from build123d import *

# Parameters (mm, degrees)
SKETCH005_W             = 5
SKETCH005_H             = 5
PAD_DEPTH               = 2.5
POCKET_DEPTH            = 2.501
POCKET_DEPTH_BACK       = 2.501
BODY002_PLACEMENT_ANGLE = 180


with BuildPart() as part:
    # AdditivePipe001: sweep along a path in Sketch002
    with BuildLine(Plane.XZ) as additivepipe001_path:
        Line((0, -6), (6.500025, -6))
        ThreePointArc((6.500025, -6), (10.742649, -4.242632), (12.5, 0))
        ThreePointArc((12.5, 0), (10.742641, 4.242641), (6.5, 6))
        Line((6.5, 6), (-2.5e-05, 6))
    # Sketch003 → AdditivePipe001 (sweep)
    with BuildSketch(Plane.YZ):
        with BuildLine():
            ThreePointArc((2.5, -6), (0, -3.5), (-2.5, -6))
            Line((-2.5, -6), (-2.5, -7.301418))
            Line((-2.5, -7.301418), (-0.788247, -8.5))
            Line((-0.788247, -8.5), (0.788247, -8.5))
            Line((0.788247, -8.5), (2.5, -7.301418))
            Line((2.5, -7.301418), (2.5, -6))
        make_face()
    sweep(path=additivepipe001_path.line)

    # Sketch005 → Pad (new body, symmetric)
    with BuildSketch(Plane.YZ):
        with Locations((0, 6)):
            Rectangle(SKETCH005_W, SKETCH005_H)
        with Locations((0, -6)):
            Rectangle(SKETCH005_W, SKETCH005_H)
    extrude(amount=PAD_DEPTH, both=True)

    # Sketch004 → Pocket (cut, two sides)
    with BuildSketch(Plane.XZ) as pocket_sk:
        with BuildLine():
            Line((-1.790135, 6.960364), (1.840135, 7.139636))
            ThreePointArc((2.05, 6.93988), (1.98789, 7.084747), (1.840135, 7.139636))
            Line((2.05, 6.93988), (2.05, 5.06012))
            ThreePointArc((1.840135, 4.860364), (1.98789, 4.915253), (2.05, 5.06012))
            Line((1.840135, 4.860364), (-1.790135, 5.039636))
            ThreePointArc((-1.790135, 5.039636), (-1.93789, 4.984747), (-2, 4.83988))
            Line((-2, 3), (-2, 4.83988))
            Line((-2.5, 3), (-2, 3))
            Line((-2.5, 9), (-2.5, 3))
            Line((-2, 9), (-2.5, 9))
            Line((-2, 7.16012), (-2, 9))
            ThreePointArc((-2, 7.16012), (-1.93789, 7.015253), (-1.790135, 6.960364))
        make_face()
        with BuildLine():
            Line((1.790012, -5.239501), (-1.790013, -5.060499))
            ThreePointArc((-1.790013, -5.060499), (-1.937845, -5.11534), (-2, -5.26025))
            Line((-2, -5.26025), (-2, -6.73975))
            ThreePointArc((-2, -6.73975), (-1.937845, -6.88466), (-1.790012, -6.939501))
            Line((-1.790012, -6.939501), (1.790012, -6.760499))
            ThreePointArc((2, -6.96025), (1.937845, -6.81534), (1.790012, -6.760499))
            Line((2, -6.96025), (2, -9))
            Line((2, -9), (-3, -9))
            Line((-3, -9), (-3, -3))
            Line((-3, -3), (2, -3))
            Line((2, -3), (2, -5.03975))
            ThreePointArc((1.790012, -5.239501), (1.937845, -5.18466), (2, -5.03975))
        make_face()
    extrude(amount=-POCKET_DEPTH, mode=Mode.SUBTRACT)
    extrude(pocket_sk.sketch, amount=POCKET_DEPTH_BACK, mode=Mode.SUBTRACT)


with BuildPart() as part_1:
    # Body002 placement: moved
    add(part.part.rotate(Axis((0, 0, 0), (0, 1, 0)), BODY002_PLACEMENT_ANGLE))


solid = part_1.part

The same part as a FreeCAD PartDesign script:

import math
import FreeCAD as App
import Part
import Sketcher
Q = App.Units.Quantity

doc = App.newDocument("Part")
body = doc.addObject("PartDesign::Body", "Body")

sketch1 = doc.addObject("Sketcher::SketchObject", "Sketch")
body.addObject(sketch1)
sketch1.AttachmentSupport = (doc.YZ_Plane, [""])
sketch1.MapMode = "FlatFace"
sketch1.addGeometry(Part.ArcOfCircle(Part.Circle(App.Vector(0, -6, 0), App.Vector(0, 0, 1), 2.5), math.radians(0), math.radians(180)), False)
sketch1.addGeometry(Part.LineSegment(App.Vector(-2.5, -6, 0), App.Vector(-2.5, -7.3, 0)), False)
sketch1.addGeometry(Part.LineSegment(App.Vector(-2.5, -7.3, 0), App.Vector(-0.8, -8.5, 0)), False)
sketch1.addGeometry(Part.LineSegment(App.Vector(-0.8, -8.5, 0), App.Vector(0.8, -8.5, 0)), False)
sketch1.addGeometry(Part.LineSegment(App.Vector(0.8, -8.5, 0), App.Vector(2.5, -7.3, 0)), False)
sketch1.addGeometry(Part.LineSegment(App.Vector(2.5, -7.3, 0), App.Vector(2.5, -6, 0)), False)
sketch1.addConstraint(Sketcher.Constraint("Tangent", 0, 2, 1, 1))
sketch1.addConstraint(Sketcher.Constraint("Coincident", 1, 2, 2, 1))
sketch1.addConstraint(Sketcher.Constraint("Coincident", 2, 2, 3, 1))
sketch1.addConstraint(Sketcher.Constraint("Coincident", 3, 2, 4, 1))
sketch1.addConstraint(Sketcher.Constraint("Coincident", 4, 2, 5, 1))
sketch1.addConstraint(Sketcher.Constraint("Tangent", 5, 2, 0, 1))
sketch1.addConstraint(Sketcher.Constraint("Vertical", 1))
sketch1.addConstraint(Sketcher.Constraint("Horizontal", 3))
sketch1.addConstraint(Sketcher.Constraint("Vertical", 5))
sketch1.addConstraint(Sketcher.Constraint("Symmetric", 1, 2, 4, 2, -2))
sketch1.addConstraint(Sketcher.Constraint("Equal", 2, 4))
sketch1.addConstraint(Sketcher.Constraint("Radius", 0, 2.5))
sketch1.addConstraint(Sketcher.Constraint("Angle", 2, Q("-34.999992 deg")))
sketch1.addConstraint(Sketcher.Constraint("DistanceY", 0, 3, -1, 1, 6.0))
sketch1.addConstraint(Sketcher.Constraint("DistanceY", 2, 2, -1, 1, 8.5))
sketch1.addConstraint(Sketcher.Constraint("DistanceX", 3, 1, 3, 2, 1.576494))

sketch2 = doc.addObject("Sketcher::SketchObject", "Sketch001")
body.addObject(sketch2)
sketch2.AttachmentSupport = (doc.XZ_Plane, [""])
sketch2.MapMode = "FlatFace"
sketch2.addGeometry(Part.LineSegment(App.Vector(0, -6, 0), App.Vector(7, -6, 0)), False)
sketch2.addGeometry(Part.ArcOfCircle(Part.Circle(App.Vector(6, 0, 0), App.Vector(0, 0, 1), 6), math.radians(-90), math.radians(0)), False)
sketch2.addGeometry(Part.ArcOfCircle(Part.Circle(App.Vector(7, 0, 0), App.Vector(0, 0, 1), 6), math.radians(0), math.radians(90)), False)
sketch2.addGeometry(Part.LineSegment(App.Vector(6, 6, 0), App.Vector(0, 6, 0)), False)
sketch2.addConstraint(Sketcher.Constraint("Coincident", 0, 2, 1, 1))
sketch2.addConstraint(Sketcher.Constraint("Tangent", 1, 2, 2, 1))
sketch2.addConstraint(Sketcher.Constraint("Tangent", 2, 2, 3, 1))
sketch2.addConstraint(Sketcher.Constraint("Horizontal", 0))
sketch2.addConstraint(Sketcher.Constraint("Horizontal", 3))
sketch2.addConstraint(Sketcher.Constraint("Equal", 1, 2))
sketch2.addConstraint(Sketcher.Constraint("PointOnObject", 1, 3, -1))
sketch2.addConstraint(Sketcher.Constraint("PointOnObject", 0, 1, -2))
sketch2.addConstraint(Sketcher.Constraint("PointOnObject", 1, 2, -1))
sketch2.addConstraint(Sketcher.Constraint("Equal", 0, 3))
sketch2.addConstraint(Sketcher.Constraint("Radius", 1, 6.000001))
sketch2.addConstraint(Sketcher.Constraint("DistanceX", -1, 1, 1, 3, 6.499999))
sketch2.addConstraint(Sketcher.Constraint("DistanceX", 0, 1, 0, 2, 6.500025))
doc.recompute()

additivepipe = doc.addObject("PartDesign::AdditivePipe", "AdditivePipe")
body.addObject(additivepipe)
additivepipe.Profile = sketch1
additivepipe.Spine = (sketch2, ["Edge1", "Edge2", "Edge3", "Edge4"])

sketch3 = doc.addObject("Sketcher::SketchObject", "Sketch002")
body.addObject(sketch3)
sketch3.AttachmentSupport = (doc.YZ_Plane, [""])
sketch3.MapMode = "FlatFace"
sketch3.addGeometry(Part.LineSegment(App.Vector(-2, 8, 0), App.Vector(-2, 4, 0)), False)
sketch3.addGeometry(Part.LineSegment(App.Vector(-2, 4, 0), App.Vector(2, 4, 0)), False)
sketch3.addGeometry(Part.LineSegment(App.Vector(2, 4, 0), App.Vector(2, 8, 0)), False)
sketch3.addGeometry(Part.LineSegment(App.Vector(2, 8, 0), App.Vector(-2, 8, 0)), False)
sketch3.addGeometry(Part.LineSegment(App.Vector(-2, -4, 0), App.Vector(-2, -8, 0)), False)
sketch3.addGeometry(Part.LineSegment(App.Vector(-2, -8, 0), App.Vector(2, -8, 0)), False)
sketch3.addGeometry(Part.LineSegment(App.Vector(2, -8, 0), App.Vector(2, -4, 0)), False)
sketch3.addGeometry(Part.LineSegment(App.Vector(2, -4, 0), App.Vector(-2, -4, 0)), False)
sketch3.addConstraint(Sketcher.Constraint("Coincident", 0, 2, 1, 1))
sketch3.addConstraint(Sketcher.Constraint("Coincident", 1, 2, 2, 1))
sketch3.addConstraint(Sketcher.Constraint("Coincident", 2, 2, 3, 1))
sketch3.addConstraint(Sketcher.Constraint("Coincident", 3, 2, 0, 1))
sketch3.addConstraint(Sketcher.Constraint("Coincident", 4, 2, 5, 1))
sketch3.addConstraint(Sketcher.Constraint("Coincident", 5, 2, 6, 1))
sketch3.addConstraint(Sketcher.Constraint("Coincident", 6, 2, 7, 1))
sketch3.addConstraint(Sketcher.Constraint("Coincident", 7, 2, 4, 1))
sketch3.addConstraint(Sketcher.Constraint("Vertical", 0))
sketch3.addConstraint(Sketcher.Constraint("Horizontal", 1))
sketch3.addConstraint(Sketcher.Constraint("Vertical", 2))
sketch3.addConstraint(Sketcher.Constraint("Horizontal", 3))
sketch3.addConstraint(Sketcher.Constraint("Vertical", 4))
sketch3.addConstraint(Sketcher.Constraint("Horizontal", 5))
sketch3.addConstraint(Sketcher.Constraint("Vertical", 6))
sketch3.addConstraint(Sketcher.Constraint("Horizontal", 7))
sketch3.addConstraint(Sketcher.Constraint("Symmetric", 2, 2, 4, 2, -1, 1))
sketch3.addConstraint(Sketcher.Constraint("Symmetric", 0, 2, 6, 2, -1, 1))
sketch3.addConstraint(Sketcher.Constraint("Vertical", 3, 2, 4, 2))
sketch3.addConstraint(Sketcher.Constraint("Equal", 7, 0))
sketch3.addConstraint(Sketcher.Constraint("DistanceX", 1, 1, 1, 2, 5.0))
sketch3.addConstraint(Sketcher.Constraint("DistanceY", 4, 2, 0, 2, 12.0))
pad1 = doc.addObject("PartDesign::Pad", "Pad")
body.addObject(pad1)
pad1.Profile = sketch3
pad1.Length = 5
pad1.Midplane = True

sketch4 = doc.addObject("Sketcher::SketchObject", "Sketch003")
body.addObject(sketch4)
sketch4.AttachmentSupport = (doc.XZ_Plane, [""])
sketch4.MapMode = "FlatFace"
sketch4.addGeometry(Part.LineSegment(App.Vector(1.84, 7.14, 0), App.Vector(-1.79, 6.96, 0)), False)
sketch4.addGeometry(Part.ArcOfCircle(Part.Circle(App.Vector(-1.8, 7.16, 0), App.Vector(0, 0, 1), 0.2), math.radians(180), math.radians(273)), False)
sketch4.addGeometry(Part.LineSegment(App.Vector(-2, 7.16, 0), App.Vector(-2, 9, 0)), False)
sketch4.addGeometry(Part.LineSegment(App.Vector(-2, 9, 0), App.Vector(-2.5, 9, 0)), False)
sketch4.addGeometry(Part.LineSegment(App.Vector(-2.5, 9, 0), App.Vector(-2.5, 3, 0)), False)
sketch4.addGeometry(Part.LineSegment(App.Vector(-2.5, 3, 0), App.Vector(-2, 3, 0)), False)
sketch4.addGeometry(Part.LineSegment(App.Vector(-2, 3, 0), App.Vector(-2, 4.84, 0)), False)
sketch4.addGeometry(Part.ArcOfCircle(Part.Circle(App.Vector(-1.8, 4.84, 0), App.Vector(0, 0, 1), 0.2), math.radians(87), math.radians(180)), False)
sketch4.addGeometry(Part.LineSegment(App.Vector(-1.79, 5.04, 0), App.Vector(1.84, 4.86, 0)), False)
sketch4.addGeometry(Part.ArcOfCircle(Part.Circle(App.Vector(1.85, 5.06, 0), App.Vector(0, 0, 1), 0.2), math.radians(-93), math.radians(0)), False)
sketch4.addGeometry(Part.LineSegment(App.Vector(2.05, 5.06, 0), App.Vector(2.05, 6.94, 0)), False)
sketch4.addGeometry(Part.ArcOfCircle(Part.Circle(App.Vector(1.85, 6.94, 0), App.Vector(0, 0, 1), 0.2), math.radians(0), math.radians(93)), False)
sketch4.addGeometry(Part.LineSegment(App.Vector(-1.79, -5.06, 0), App.Vector(1.79, -5.24, 0)), False)
sketch4.addGeometry(Part.ArcOfCircle(Part.Circle(App.Vector(1.8, -5.04, 0), App.Vector(0, 0, 1), 0.2), math.radians(-93), math.radians(0)), False)
sketch4.addGeometry(Part.LineSegment(App.Vector(2, -5.04, 0), App.Vector(2, -3, 0)), False)
sketch4.addGeometry(Part.LineSegment(App.Vector(2, -3, 0), App.Vector(-3, -3, 0)), False)
sketch4.addGeometry(Part.LineSegment(App.Vector(-3, -3, 0), App.Vector(-3, -9, 0)), False)
sketch4.addGeometry(Part.LineSegment(App.Vector(-3, -9, 0), App.Vector(2, -9, 0)), False)
sketch4.addGeometry(Part.LineSegment(App.Vector(2, -9, 0), App.Vector(2, -6.96, 0)), False)
sketch4.addGeometry(Part.ArcOfCircle(Part.Circle(App.Vector(1.8, -6.96, 0), App.Vector(0, 0, 1), 0.2), math.radians(0), math.radians(93)), False)
sketch4.addGeometry(Part.LineSegment(App.Vector(1.79, -6.76, 0), App.Vector(-1.79, -6.94, 0)), False)
sketch4.addGeometry(Part.ArcOfCircle(Part.Circle(App.Vector(-1.8, -6.74, 0), App.Vector(0, 0, 1), 0.2), math.radians(180), math.radians(273)), False)
sketch4.addGeometry(Part.LineSegment(App.Vector(-2, -6.74, 0), App.Vector(-2, -5.26, 0)), False)
sketch4.addGeometry(Part.ArcOfCircle(Part.Circle(App.Vector(-1.8, -5.26, 0), App.Vector(0, 0, 1), 0.2), math.radians(87), math.radians(180)), False)
sketch4.addConstraint(Sketcher.Constraint("Coincident", 0, 2, 1, 2))
sketch4.addConstraint(Sketcher.Constraint("Coincident", 1, 1, 2, 1))
sketch4.addConstraint(Sketcher.Constraint("Coincident", 2, 2, 3, 1))
sketch4.addConstraint(Sketcher.Constraint("Coincident", 3, 2, 4, 1))
sketch4.addConstraint(Sketcher.Constraint("Coincident", 4, 2, 5, 1))
sketch4.addConstraint(Sketcher.Constraint("Coincident", 5, 2, 6, 1))
sketch4.addConstraint(Sketcher.Constraint("Coincident", 6, 2, 7, 2))
sketch4.addConstraint(Sketcher.Constraint("Coincident", 7, 1, 8, 1))
sketch4.addConstraint(Sketcher.Constraint("Coincident", 8, 2, 9, 1))
sketch4.addConstraint(Sketcher.Constraint("Coincident", 9, 2, 10, 1))
sketch4.addConstraint(Sketcher.Constraint("Coincident", 10, 2, 11, 1))
sketch4.addConstraint(Sketcher.Constraint("Coincident", 11, 2, 0, 1))
sketch4.addConstraint(Sketcher.Constraint("Tangent", 12, 2, 13, 1))
sketch4.addConstraint(Sketcher.Constraint("Coincident", 13, 2, 14, 1))
sketch4.addConstraint(Sketcher.Constraint("Coincident", 14, 2, 15, 1))
sketch4.addConstraint(Sketcher.Constraint("Coincident", 15, 2, 16, 1))
sketch4.addConstraint(Sketcher.Constraint("Coincident", 16, 2, 17, 1))
sketch4.addConstraint(Sketcher.Constraint("Coincident", 17, 2, 18, 1))
sketch4.addConstraint(Sketcher.Constraint("Coincident", 18, 2, 19, 1))
sketch4.addConstraint(Sketcher.Constraint("Tangent", 19, 2, 20, 1))
sketch4.addConstraint(Sketcher.Constraint("Tangent", 20, 2, 21, 2))
sketch4.addConstraint(Sketcher.Constraint("Coincident", 21, 1, 22, 1))
sketch4.addConstraint(Sketcher.Constraint("Coincident", 22, 2, 23, 2))
sketch4.addConstraint(Sketcher.Constraint("Coincident", 23, 1, 12, 1))
sketch4.addConstraint(Sketcher.Constraint("Vertical", 2))
sketch4.addConstraint(Sketcher.Constraint("Horizontal", 3))
sketch4.addConstraint(Sketcher.Constraint("Vertical", 4))
sketch4.addConstraint(Sketcher.Constraint("Horizontal", 5))
sketch4.addConstraint(Sketcher.Constraint("Vertical", 6))
sketch4.addConstraint(Sketcher.Constraint("Vertical", 10))
sketch4.addConstraint(Sketcher.Constraint("Vertical", 14))
sketch4.addConstraint(Sketcher.Constraint("Horizontal", 15))
sketch4.addConstraint(Sketcher.Constraint("Vertical", 16))
sketch4.addConstraint(Sketcher.Constraint("Horizontal", 17))
sketch4.addConstraint(Sketcher.Constraint("Vertical", 18))
sketch4.addConstraint(Sketcher.Constraint("Vertical", 22))
sketch4.addConstraint(Sketcher.Constraint("Equal", 1, 7))
sketch4.addConstraint(Sketcher.Constraint("Equal", 7, 9))
sketch4.addConstraint(Sketcher.Constraint("Equal", 9, 11))
sketch4.addConstraint(Sketcher.Constraint("Equal", 11, 13))
sketch4.addConstraint(Sketcher.Constraint("Equal", 13, 19))
sketch4.addConstraint(Sketcher.Constraint("Equal", 19, 21))
sketch4.addConstraint(Sketcher.Constraint("Equal", 21, 23))
sketch4.addConstraint(Sketcher.Constraint("Symmetric", 5, 2, 14, 2, -1, 1))
sketch4.addConstraint(Sketcher.Constraint("Symmetric", 2, 2, 17, 2, -1, 1))
sketch4.addConstraint(Sketcher.Constraint("Horizontal", 7, 3, 6, 2))
sketch4.addConstraint(Sketcher.Constraint("Horizontal", 11, 3, 10, 2))
sketch4.addConstraint(Sketcher.Constraint("Horizontal", 19, 3, 18, 2))
sketch4.addConstraint(Sketcher.Constraint("Horizontal", 23, 3, 22, 2))
sketch4.addConstraint(Sketcher.Constraint("Vertical", 1, 3, 7, 3))
sketch4.addConstraint(Sketcher.Constraint("Vertical", 7, 3, 21, 3))
sketch4.addConstraint(Sketcher.Constraint("Vertical", 0, 2, 7, 1))
sketch4.addConstraint(Sketcher.Constraint("Vertical", 8, 2, 11, 2))
sketch4.addConstraint(Sketcher.Constraint("Vertical", 12, 2, 19, 2))
sketch4.addConstraint(Sketcher.Constraint("Vertical", 20, 2, 23, 1))
sketch4.addConstraint(Sketcher.Constraint("Equal", 2, 6))
sketch4.addConstraint(Sketcher.Constraint("Equal", 14, 18))
sketch4.addConstraint(Sketcher.Constraint("Equal", 0, 8))
sketch4.addConstraint(Sketcher.Constraint("Radius", 1, 0.199999))
sketch4.addConstraint(Sketcher.Constraint("DistanceX", 15, 2, 15, 1, 5.0))
sketch4.addConstraint(Sketcher.Constraint("DistanceY", 4, 2, 4, 1, 6.0))
sketch4.addConstraint(Sketcher.Constraint("DistanceX", 3, 2, 3, 1, 0.5))
sketch4.addConstraint(Sketcher.Constraint("DistanceX", 1, 1, -1, 1, 2.0))
sketch4.addConstraint(Sketcher.Constraint("DistanceY", -1, 1, 2, 2, 9.0))
sketch4.addConstraint(Sketcher.Constraint("DistanceY", 9, 3, 1, 3, 2.1))
sketch4.addConstraint(Sketcher.Constraint("DistanceY", 21, 3, 13, 3, 1.7))
sketch4.addConstraint(Sketcher.Constraint("DistanceY", 9, 3, 1, 1, 2.100001))
sketch4.addConstraint(Sketcher.Constraint("DistanceY", 21, 3, 13, 2, 1.700001))
sketch4.addConstraint(Sketcher.Constraint("DistanceX", -1, 1, 9, 3, 1.850001))
sketch4.addConstraint(Sketcher.Constraint("DistanceY", 22, 1, 22, 2, 1.4795))
sketch4.addConstraint(Sketcher.Constraint("DistanceY", 19, 2, 12, 2, 1.520998))
sketch4.addConstraint(Sketcher.Constraint("DistanceY", 2, 1, 2, 2, 1.83988))
sketch4.addConstraint(Sketcher.Constraint("DistanceY", 10, 1, 10, 2, 1.87976))
sketch4.addConstraint(Sketcher.Constraint("DistanceY", 7, 1, 0, 2, 1.920728))
sketch4.addConstraint(Sketcher.Constraint("DistanceX", 7, 1, 8, 2, 3.63027))
pocket1 = doc.addObject("PartDesign::Pocket", "Pocket")
body.addObject(pocket1)
pocket1.Profile = sketch4
pocket1.Type = "ThroughAll"
pocket1.Midplane = True
body2 = doc.addObject("PartDesign::Body", "Body001")
doc.recompute()

body.Placement = App.Placement(App.Vector(0, 0, 0), App.Rotation(App.Vector(0, 1, 0), 180))
boolean = doc.addObject("PartDesign::Boolean", "Boolean")
body2.addObject(boolean)
boolean.Type = "Fuse"
boolean.addObjects([body])

doc.recompute()
